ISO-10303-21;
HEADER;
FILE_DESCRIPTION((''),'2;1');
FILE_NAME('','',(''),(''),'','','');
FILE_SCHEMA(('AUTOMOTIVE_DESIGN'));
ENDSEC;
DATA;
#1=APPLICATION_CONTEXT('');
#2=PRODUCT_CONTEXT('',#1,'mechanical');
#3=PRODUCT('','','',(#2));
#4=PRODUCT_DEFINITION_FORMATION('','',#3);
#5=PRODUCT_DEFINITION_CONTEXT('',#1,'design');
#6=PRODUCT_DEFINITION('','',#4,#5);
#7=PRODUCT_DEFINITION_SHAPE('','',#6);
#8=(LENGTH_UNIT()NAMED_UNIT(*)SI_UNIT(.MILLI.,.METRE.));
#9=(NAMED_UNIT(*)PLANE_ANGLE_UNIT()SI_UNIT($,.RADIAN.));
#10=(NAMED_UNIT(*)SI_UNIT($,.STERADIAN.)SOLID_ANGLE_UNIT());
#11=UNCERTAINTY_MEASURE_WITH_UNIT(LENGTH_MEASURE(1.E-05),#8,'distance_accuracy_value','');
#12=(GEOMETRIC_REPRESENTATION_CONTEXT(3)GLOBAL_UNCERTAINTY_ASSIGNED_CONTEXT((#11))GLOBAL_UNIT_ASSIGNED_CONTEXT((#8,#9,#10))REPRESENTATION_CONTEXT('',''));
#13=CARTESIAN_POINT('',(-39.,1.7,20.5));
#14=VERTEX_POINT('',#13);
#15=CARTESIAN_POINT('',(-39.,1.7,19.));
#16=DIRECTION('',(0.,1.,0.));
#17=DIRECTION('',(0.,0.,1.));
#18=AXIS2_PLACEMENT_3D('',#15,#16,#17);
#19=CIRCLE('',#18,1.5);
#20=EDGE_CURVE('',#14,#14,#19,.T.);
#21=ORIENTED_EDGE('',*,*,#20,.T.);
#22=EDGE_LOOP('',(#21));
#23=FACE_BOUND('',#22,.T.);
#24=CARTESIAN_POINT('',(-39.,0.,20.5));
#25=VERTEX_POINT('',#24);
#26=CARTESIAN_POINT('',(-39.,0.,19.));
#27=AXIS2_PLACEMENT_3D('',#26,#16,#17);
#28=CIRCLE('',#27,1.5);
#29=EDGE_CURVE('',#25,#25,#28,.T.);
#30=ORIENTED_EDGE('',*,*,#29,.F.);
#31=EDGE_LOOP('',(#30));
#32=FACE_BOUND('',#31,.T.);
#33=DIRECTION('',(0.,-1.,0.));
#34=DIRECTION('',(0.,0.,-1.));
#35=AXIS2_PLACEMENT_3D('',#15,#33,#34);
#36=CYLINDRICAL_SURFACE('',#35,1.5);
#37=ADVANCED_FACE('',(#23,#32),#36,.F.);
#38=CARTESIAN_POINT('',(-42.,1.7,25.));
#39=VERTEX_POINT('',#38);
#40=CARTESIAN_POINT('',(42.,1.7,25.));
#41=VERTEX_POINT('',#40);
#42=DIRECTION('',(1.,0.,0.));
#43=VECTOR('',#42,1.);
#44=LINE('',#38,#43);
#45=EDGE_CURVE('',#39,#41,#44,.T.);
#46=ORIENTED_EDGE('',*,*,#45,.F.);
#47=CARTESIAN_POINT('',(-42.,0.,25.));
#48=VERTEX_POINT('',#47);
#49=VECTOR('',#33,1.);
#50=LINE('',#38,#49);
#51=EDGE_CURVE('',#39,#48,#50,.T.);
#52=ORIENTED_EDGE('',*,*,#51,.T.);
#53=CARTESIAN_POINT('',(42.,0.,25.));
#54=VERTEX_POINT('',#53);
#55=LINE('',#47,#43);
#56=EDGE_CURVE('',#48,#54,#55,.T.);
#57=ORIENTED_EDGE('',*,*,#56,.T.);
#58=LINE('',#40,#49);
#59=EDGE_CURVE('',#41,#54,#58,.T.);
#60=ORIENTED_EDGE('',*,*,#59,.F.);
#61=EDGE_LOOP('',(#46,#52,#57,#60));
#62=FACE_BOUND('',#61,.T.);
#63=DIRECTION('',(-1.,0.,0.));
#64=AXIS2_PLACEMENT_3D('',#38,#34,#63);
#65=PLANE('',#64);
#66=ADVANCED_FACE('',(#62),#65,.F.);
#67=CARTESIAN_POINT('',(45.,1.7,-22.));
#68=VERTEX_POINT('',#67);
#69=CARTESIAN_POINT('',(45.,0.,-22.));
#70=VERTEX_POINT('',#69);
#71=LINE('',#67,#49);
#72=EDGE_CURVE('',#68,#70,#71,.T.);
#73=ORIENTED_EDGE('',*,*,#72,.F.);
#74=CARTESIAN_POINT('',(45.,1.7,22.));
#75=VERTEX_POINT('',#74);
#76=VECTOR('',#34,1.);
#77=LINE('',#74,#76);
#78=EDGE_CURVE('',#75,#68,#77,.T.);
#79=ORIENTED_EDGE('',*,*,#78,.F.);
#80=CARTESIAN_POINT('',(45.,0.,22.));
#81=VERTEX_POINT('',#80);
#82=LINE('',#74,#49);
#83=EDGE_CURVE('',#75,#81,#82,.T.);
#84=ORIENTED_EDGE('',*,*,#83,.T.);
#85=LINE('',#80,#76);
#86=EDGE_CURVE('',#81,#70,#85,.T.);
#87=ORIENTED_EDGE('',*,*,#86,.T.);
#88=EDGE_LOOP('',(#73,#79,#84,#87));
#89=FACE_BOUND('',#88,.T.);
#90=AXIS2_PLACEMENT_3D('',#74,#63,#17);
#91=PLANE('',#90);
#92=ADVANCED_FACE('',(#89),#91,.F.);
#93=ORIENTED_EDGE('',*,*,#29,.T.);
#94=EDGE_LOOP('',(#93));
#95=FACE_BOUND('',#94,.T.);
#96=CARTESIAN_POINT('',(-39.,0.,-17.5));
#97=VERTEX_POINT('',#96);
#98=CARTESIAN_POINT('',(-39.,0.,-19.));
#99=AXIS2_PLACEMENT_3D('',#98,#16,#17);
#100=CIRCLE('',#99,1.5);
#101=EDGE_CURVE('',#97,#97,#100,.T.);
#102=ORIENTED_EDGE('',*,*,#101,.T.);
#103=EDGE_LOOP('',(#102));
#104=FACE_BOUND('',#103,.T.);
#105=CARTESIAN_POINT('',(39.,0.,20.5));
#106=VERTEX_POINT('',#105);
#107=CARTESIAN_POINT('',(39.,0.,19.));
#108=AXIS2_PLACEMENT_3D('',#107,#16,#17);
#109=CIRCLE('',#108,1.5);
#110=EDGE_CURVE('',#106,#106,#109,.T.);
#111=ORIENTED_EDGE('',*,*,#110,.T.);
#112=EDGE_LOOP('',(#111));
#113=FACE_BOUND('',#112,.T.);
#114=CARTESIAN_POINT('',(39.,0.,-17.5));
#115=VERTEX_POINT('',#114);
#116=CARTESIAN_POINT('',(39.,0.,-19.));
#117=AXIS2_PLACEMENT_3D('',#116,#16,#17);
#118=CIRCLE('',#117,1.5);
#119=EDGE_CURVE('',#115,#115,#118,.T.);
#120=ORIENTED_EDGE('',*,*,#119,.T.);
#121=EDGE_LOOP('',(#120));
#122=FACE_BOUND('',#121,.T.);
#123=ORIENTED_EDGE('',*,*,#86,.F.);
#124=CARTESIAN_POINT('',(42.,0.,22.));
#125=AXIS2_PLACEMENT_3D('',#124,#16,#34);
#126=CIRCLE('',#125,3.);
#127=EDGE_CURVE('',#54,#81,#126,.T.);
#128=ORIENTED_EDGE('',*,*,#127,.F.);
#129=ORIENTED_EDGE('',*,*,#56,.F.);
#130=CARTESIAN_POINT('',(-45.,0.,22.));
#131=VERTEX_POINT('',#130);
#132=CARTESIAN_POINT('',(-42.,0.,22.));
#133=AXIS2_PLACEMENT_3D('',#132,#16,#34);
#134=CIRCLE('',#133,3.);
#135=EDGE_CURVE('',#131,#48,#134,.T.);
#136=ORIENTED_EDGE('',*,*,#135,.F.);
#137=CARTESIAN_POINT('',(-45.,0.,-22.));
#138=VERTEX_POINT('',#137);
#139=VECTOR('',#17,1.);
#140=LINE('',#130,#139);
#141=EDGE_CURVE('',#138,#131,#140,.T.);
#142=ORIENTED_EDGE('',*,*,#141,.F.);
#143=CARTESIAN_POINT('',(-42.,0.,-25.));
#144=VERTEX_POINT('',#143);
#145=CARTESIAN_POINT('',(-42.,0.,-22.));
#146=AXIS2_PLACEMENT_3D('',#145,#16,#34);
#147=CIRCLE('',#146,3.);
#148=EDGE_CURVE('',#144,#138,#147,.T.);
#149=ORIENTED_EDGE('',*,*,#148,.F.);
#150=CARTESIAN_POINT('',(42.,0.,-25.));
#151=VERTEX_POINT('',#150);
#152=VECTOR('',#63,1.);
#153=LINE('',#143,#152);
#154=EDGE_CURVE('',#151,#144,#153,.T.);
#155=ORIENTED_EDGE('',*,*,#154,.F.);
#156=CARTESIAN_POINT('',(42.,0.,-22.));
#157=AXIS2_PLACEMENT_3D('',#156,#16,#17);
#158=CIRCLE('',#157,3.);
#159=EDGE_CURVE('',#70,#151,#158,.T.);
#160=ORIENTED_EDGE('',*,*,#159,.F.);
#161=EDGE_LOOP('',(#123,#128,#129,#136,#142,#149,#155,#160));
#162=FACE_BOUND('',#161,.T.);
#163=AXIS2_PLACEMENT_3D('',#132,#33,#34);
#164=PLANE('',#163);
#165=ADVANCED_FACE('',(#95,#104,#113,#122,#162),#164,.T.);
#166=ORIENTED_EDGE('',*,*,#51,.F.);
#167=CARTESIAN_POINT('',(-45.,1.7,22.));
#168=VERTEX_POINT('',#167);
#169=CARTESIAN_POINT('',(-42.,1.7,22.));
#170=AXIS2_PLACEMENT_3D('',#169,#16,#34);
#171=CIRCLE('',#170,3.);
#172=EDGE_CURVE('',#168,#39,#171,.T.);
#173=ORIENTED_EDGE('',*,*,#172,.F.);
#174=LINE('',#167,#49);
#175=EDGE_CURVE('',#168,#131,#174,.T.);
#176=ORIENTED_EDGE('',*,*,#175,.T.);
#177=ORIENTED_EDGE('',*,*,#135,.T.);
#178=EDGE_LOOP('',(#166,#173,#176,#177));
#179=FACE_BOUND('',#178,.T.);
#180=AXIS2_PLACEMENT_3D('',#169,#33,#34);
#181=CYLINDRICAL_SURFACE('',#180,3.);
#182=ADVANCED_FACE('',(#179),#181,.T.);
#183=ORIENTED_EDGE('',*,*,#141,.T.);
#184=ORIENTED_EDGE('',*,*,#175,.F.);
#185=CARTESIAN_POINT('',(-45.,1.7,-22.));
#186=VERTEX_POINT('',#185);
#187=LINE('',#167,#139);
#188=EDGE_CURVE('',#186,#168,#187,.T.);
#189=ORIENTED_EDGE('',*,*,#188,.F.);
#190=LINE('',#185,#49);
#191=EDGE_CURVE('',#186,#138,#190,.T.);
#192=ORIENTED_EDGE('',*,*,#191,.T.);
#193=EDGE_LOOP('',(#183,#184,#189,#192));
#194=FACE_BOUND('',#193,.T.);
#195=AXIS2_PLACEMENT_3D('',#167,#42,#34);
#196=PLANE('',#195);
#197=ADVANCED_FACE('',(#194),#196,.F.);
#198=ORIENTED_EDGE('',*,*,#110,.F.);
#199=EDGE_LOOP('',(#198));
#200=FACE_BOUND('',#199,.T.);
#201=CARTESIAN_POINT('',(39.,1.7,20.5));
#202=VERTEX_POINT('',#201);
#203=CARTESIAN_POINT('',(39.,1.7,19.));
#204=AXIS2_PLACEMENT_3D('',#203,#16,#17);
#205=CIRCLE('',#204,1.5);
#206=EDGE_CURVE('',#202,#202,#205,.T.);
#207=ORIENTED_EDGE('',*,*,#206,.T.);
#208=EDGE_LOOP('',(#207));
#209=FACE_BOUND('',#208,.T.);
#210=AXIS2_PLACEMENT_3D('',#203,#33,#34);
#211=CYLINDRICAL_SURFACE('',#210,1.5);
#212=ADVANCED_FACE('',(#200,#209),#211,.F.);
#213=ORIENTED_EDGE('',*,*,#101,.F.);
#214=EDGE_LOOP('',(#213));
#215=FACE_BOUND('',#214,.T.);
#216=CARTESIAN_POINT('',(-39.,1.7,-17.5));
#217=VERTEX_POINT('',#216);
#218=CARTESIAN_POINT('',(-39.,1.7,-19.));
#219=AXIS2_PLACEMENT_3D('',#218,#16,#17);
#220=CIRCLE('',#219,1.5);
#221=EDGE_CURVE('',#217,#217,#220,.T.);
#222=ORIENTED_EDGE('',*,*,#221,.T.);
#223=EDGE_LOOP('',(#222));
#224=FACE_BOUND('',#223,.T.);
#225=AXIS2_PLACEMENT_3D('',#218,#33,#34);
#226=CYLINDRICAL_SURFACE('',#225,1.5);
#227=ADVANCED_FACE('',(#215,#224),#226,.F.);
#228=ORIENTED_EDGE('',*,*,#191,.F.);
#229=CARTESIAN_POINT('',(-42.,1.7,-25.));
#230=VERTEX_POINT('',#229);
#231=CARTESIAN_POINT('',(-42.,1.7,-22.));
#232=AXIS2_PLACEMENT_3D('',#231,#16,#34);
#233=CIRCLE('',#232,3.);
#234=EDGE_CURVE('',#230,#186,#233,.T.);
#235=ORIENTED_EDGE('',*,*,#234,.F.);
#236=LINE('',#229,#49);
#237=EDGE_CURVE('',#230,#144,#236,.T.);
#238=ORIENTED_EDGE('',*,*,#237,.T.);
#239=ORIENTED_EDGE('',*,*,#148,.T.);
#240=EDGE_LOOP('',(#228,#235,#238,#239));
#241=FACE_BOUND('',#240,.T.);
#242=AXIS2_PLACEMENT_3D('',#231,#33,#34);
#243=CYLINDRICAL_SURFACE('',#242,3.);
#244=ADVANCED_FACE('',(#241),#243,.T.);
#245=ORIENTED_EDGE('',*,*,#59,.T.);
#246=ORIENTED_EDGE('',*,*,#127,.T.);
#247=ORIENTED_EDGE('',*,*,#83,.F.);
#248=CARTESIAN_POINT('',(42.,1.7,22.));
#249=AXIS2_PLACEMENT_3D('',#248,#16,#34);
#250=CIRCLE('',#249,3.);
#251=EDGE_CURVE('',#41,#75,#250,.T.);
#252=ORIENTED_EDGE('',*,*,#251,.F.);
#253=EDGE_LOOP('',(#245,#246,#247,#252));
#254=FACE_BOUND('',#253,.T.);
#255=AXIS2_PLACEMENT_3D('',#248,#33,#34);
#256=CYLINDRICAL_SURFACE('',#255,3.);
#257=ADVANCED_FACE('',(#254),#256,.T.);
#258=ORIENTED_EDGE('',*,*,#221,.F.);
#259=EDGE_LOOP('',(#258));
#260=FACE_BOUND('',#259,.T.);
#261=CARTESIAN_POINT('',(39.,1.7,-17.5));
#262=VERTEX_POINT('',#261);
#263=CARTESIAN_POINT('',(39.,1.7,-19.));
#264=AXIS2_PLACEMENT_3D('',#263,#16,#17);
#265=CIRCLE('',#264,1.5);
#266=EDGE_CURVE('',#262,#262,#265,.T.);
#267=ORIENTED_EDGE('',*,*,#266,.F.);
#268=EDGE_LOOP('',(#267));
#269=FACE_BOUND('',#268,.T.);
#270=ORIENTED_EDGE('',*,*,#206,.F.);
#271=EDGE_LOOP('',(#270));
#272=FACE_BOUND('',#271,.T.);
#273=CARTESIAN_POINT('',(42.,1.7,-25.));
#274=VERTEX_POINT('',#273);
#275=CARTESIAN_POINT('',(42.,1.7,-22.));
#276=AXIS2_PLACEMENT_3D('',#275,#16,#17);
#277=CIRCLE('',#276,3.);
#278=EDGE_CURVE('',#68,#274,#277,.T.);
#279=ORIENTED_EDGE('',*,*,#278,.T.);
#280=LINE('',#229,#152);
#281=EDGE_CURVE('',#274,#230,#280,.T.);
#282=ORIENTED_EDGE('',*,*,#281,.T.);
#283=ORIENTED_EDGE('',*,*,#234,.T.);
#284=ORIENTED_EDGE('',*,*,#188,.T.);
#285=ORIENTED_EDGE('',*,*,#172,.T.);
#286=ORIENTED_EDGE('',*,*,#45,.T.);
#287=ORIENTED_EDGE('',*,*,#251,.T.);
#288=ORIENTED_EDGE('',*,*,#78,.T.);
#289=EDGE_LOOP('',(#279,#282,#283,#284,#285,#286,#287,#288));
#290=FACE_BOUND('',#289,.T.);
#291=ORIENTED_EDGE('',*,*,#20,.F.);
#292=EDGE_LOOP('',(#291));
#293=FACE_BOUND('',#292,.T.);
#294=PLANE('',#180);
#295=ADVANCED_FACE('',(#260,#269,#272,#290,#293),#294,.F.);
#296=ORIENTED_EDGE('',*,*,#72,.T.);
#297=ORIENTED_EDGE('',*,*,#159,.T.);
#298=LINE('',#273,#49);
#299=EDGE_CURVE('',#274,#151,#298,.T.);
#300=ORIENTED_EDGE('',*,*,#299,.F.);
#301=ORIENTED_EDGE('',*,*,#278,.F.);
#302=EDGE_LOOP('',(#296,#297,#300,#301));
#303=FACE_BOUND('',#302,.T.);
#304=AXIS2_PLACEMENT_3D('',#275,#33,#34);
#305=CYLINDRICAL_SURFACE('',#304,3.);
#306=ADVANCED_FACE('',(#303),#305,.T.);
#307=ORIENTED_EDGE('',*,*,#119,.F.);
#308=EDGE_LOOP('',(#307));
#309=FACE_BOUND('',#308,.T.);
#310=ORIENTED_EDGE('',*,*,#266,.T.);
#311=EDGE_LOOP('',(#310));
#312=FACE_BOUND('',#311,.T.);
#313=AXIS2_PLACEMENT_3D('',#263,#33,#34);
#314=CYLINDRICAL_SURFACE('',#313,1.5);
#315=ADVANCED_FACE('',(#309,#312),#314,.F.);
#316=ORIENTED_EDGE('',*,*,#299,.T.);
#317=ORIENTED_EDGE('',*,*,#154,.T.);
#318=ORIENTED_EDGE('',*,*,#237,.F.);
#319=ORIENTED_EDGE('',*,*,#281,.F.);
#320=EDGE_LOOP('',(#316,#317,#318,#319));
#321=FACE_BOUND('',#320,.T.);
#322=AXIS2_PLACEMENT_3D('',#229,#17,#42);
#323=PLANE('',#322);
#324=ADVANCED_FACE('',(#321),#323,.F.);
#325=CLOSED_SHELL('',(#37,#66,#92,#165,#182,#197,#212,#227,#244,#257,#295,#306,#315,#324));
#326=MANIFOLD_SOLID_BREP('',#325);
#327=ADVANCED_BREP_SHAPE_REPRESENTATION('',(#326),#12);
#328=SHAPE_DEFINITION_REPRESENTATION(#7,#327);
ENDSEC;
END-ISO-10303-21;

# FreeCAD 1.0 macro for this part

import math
import FreeCAD as App
import Part
import Sketcher
from FreeCAD import Vector

doc = App.newDocument("Part")
body = doc.addObject("PartDesign::Body", "Body")

# Sketch on XZ plane
sketch1 = body.newObject("Sketcher::SketchObject", "Sketch")
sketch1.AttachmentSupport = (doc.getObject("XZ_Plane"), [""])
sketch1.MapMode = "FlatFace"
sketch1.addGeometry(Part.LineSegment(Vector(-42, 25, 0), Vector(42, 25, 0)), False)
sketch1.addGeometry(Part.ArcOfCircle(Part.Circle(Vector(42, 22, 0), Vector(0, 0, 1), 3), math.radians(0), math.radians(90)), False)
sketch1.addGeometry(Part.LineSegment(Vector(45, 22, 0), Vector(45, -22, 0)), False)
sketch1.addGeometry(Part.ArcOfCircle(Part.Circle(Vector(42, -22, 0), Vector(0, 0, 1), 3), math.radians(-90), math.radians(0)), False)
sketch1.addGeometry(Part.LineSegment(Vector(42, -25, 0), Vector(-42, -25, 0)), False)
sketch1.addGeometry(Part.ArcOfCircle(Part.Circle(Vector(-42, -22, 0), Vector(0, 0, 1), 3), math.radians(180), math.radians(270)), False)
sketch1.addGeometry(Part.LineSegment(Vector(-45, -22, 0), Vector(-45, 22, 0)), False)
sketch1.addGeometry(Part.ArcOfCircle(Part.Circle(Vector(-42, 22, 0), Vector(0, 0, 1), 3), math.radians(90), math.radians(180)), False)
sketch1.addGeometry(Part.Circle(Vector(-39, 19, 0), Vector(0, 0, 1), 1.5), False)
sketch1.addGeometry(Part.Circle(Vector(39, 19, 0), Vector(0, 0, 1), 1.5), False)
sketch1.addGeometry(Part.Circle(Vector(-39, -19, 0), Vector(0, 0, 1), 1.5), False)
sketch1.addGeometry(Part.Circle(Vector(39, -19, 0), Vector(0, 0, 1), 1.5), False)
sketch1.addConstraint(Sketcher.Constraint("Tangent", 0, 2, 1, 2))
sketch1.addConstraint(Sketcher.Constraint("Tangent", 1, 1, 2, 1))
sketch1.addConstraint(Sketcher.Constraint("Tangent", 2, 2, 3, 2))
sketch1.addConstraint(Sketcher.Constraint("Tangent", 3, 1, 4, 1))
sketch1.addConstraint(Sketcher.Constraint("Tangent", 4, 2, 5, 2))
sketch1.addConstraint(Sketcher.Constraint("Tangent", 5, 1, 6, 1))
sketch1.addConstraint(Sketcher.Constraint("Tangent", 6, 2, 7, 2))
sketch1.addConstraint(Sketcher.Constraint("Tangent", 7, 1, 0, 1))
sketch1.addConstraint(Sketcher.Constraint("Horizontal", 0))
sketch1.addConstraint(Sketcher.Constraint("Vertical", 2))
sketch1.addConstraint(Sketcher.Constraint("Horizontal", 4))
sketch1.addConstraint(Sketcher.Constraint("Vertical", 6))
sketch1.addConstraint(Sketcher.Constraint("Equal", 1, 3))
sketch1.addConstraint(Sketcher.Constraint("Equal", 3, 5))
sketch1.addConstraint(Sketcher.Constraint("Equal", 5, 7))
sketch1.addConstraint(Sketcher.Constraint("Equal", 8, 9))
sketch1.addConstraint(Sketcher.Constraint("Equal", 9, 10))
sketch1.addConstraint(Sketcher.Constraint("Equal", 10, 11))
sketch1.addConstraint(Sketcher.Constraint("Symmetric", 1, 3, 5, 3, -1, 1))
sketch1.addConstraint(Sketcher.Constraint("Symmetric", 9, 3, 10, 3, -1, 1))
sketch1.addConstraint(Sketcher.Constraint("Symmetric", 8, 3, 11, 3, -1, 1))
sketch1.addConstraint(Sketcher.Constraint("Symmetric", 8, 3, 9, 3, -2))
sketch1.addConstraint(Sketcher.Constraint("Diameter", 8, 3.0))
sketch1.addConstraint(Sketcher.Constraint("Radius", 1, 3.0))
sketch1.addConstraint(Sketcher.Constraint("DistanceX", 0, 1, 0, 2, 84.0))
sketch1.addConstraint(Sketcher.Constraint("DistanceY", 2, 2, 2, 1, 44.0))
sketch1.addConstraint(Sketcher.Constraint("DistanceX", 8, 3, -1, 1, 39.0))
sketch1.addConstraint(Sketcher.Constraint("DistanceY", -1, 1, 8, 3, 19.0))
pad1 = body.newObject("PartDesign::Pad", "Pad")
pad1.Profile = sketch1
pad1.Length = 1.7
pad1.Reversed = True

doc.recompute()
